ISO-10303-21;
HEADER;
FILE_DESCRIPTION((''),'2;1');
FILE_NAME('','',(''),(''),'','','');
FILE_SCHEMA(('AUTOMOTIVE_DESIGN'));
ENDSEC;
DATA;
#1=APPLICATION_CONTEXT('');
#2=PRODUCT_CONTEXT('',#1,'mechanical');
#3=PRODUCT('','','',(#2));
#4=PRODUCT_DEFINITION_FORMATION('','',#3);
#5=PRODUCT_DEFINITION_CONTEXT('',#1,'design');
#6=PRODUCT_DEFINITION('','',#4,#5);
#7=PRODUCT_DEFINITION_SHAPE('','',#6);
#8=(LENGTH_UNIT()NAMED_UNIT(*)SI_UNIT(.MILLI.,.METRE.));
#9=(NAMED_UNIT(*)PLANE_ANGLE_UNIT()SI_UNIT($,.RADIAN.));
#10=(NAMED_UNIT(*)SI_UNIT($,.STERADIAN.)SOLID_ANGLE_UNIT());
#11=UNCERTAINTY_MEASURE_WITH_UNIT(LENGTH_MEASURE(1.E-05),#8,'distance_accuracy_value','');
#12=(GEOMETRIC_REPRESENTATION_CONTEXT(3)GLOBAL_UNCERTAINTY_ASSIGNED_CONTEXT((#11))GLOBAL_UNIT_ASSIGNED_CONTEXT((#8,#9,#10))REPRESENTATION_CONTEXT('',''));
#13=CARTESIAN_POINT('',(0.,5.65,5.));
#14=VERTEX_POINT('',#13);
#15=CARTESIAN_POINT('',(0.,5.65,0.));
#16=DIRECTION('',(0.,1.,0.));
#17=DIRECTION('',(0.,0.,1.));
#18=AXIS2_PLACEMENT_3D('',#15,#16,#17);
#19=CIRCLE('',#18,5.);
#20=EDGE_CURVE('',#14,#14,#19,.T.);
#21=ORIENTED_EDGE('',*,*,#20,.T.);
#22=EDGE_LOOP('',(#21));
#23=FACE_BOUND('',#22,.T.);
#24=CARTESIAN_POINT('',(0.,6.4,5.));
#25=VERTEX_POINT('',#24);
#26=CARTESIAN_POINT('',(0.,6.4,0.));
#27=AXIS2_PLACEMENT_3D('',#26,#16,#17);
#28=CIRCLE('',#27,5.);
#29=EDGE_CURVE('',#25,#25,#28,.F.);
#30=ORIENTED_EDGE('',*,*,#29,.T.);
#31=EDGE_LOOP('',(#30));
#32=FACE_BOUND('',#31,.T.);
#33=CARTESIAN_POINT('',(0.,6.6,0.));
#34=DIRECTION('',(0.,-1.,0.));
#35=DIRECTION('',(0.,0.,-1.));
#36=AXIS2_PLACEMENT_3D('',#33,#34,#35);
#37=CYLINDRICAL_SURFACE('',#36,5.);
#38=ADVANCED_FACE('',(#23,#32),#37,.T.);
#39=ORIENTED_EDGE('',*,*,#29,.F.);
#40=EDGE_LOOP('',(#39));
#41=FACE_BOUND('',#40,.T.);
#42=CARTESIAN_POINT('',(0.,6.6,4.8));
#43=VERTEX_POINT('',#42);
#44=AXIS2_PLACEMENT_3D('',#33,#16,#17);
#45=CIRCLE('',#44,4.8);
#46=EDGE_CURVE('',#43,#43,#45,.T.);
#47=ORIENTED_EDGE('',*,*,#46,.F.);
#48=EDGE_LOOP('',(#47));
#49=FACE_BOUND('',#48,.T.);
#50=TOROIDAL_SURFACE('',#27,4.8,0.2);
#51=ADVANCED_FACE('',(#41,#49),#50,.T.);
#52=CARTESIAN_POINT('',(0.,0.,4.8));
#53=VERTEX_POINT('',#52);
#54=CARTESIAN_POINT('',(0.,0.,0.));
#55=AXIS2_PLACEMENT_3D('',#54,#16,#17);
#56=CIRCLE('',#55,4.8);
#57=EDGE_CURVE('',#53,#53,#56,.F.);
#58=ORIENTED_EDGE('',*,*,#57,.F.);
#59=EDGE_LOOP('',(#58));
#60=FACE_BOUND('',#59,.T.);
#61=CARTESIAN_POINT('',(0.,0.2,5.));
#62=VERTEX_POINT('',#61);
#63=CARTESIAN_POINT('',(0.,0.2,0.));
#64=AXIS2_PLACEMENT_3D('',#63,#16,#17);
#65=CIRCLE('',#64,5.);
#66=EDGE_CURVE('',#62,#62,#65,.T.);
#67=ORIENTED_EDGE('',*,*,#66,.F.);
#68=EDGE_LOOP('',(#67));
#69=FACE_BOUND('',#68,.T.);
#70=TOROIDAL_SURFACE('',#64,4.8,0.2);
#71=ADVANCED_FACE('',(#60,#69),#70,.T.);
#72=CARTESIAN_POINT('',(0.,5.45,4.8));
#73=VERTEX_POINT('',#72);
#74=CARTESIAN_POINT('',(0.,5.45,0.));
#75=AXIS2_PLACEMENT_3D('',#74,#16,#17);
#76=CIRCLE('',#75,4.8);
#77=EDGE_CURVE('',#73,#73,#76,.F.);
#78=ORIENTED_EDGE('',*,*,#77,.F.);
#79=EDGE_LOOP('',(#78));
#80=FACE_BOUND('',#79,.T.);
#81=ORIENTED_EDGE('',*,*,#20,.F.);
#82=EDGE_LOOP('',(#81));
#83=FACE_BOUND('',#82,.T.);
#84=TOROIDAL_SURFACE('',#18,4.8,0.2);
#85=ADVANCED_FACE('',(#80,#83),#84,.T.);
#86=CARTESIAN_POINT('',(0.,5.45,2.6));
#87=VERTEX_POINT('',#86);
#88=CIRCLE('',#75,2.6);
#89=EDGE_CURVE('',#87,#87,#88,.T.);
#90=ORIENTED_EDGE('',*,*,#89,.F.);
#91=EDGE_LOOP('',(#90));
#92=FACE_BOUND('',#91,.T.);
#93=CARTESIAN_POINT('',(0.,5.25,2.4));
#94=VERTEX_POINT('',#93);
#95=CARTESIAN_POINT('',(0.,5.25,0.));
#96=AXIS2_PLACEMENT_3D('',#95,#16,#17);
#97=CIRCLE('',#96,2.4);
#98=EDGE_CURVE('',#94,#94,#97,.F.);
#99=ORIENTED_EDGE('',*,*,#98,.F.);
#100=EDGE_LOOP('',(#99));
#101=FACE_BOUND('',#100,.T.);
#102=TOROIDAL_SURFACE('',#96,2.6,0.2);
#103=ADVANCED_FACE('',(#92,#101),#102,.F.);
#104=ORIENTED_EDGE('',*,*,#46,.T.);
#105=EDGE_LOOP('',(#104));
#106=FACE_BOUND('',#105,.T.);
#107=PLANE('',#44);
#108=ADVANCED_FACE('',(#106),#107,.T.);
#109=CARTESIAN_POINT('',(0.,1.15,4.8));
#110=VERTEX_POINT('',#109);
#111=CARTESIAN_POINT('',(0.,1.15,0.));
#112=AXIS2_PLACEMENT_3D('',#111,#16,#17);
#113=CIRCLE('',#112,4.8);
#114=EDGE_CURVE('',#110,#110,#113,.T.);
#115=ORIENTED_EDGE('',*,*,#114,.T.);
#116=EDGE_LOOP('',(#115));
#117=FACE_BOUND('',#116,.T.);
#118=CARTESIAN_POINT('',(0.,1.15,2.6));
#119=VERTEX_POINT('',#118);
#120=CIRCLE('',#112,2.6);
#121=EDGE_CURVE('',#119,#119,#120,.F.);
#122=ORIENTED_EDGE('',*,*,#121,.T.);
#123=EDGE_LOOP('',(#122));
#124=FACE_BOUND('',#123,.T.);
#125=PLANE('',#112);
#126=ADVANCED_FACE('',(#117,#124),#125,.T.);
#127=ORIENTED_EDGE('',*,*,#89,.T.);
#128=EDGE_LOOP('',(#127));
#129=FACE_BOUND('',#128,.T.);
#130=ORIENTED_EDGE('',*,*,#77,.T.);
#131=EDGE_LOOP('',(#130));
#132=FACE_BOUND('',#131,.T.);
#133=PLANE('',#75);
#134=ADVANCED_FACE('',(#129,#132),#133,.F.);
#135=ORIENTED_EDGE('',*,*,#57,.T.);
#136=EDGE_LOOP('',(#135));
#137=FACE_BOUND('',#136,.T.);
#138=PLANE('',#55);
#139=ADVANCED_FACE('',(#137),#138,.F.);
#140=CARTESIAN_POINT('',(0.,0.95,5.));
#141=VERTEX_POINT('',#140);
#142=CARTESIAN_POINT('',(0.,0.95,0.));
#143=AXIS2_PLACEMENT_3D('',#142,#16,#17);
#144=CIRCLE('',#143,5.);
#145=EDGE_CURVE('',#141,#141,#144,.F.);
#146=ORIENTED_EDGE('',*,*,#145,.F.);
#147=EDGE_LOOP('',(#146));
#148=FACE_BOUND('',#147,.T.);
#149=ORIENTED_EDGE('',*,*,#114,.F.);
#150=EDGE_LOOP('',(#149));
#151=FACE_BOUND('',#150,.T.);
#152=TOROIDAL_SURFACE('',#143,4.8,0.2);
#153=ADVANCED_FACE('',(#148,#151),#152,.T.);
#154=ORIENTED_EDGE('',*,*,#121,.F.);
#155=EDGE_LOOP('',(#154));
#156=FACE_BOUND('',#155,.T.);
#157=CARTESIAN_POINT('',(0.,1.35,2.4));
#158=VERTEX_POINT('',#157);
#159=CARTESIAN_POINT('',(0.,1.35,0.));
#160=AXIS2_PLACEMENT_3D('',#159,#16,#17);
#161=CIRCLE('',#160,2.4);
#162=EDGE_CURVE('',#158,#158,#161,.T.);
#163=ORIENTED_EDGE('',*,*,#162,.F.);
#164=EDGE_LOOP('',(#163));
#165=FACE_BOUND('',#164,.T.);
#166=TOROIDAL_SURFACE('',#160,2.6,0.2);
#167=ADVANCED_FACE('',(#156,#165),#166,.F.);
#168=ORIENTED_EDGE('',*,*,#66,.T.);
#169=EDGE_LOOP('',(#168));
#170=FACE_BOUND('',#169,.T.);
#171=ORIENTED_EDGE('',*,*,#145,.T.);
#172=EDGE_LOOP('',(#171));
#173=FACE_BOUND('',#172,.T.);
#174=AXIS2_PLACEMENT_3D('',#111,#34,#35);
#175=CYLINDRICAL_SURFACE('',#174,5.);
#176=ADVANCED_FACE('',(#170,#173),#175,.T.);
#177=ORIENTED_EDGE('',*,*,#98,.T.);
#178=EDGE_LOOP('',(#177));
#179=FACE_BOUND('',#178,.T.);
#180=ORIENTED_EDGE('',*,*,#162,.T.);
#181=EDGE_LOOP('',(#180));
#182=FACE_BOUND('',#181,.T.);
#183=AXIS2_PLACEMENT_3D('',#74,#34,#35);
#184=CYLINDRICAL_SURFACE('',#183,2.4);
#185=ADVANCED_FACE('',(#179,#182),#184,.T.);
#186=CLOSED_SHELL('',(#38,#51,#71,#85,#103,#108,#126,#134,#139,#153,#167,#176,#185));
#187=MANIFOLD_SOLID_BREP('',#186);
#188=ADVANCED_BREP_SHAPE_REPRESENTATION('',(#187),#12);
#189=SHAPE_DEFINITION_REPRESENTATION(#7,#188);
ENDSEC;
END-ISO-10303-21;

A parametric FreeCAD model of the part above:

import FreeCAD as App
import Part
import Sketcher
Q = App.Units.Quantity


def edges_at(feature, points):
    """Names of the edges that pass closest to the given points."""
    edges = feature.Shape.Edges
    near = lambda p: min(range(len(edges)), key=lambda i: edges[i].distToShape(Part.Vertex(*p))[0])
    return sorted({f"Edge{near(p) + 1}" for p in points})

doc = App.newDocument("Part")
body = doc.addObject("PartDesign::Body", "Body")

# Sketch on XZ plane
sketch1 = doc.addObject("Sketcher::SketchObject", "Sketch")
body.addObject(sketch1)
sketch1.AttachmentSupport = (doc.XZ_Plane, [""])
sketch1.MapMode = "FlatFace"
sketch1.addGeometry(Part.Circle(App.Vector(0, 0, 0), App.Vector(0, 0, 1), 5), False)
sketch1.addConstraint(Sketcher.Constraint("Coincident", 0, 3, -1, 1))
sketch1.addConstraint(Sketcher.Constraint("Diameter", 0, Q("10 mm")))
pad1 = doc.addObject("PartDesign::Pad", "Pad")
body.addObject(pad1)
pad1.Profile = sketch1
pad1.Length = 1.15
pad1.Reversed = True

# Sketch on XZ plane
sketch2 = doc.addObject("Sketcher::SketchObject", "Sketch001")
body.addObject(sketch2)
sketch2.AttachmentSupport = (doc.XZ_Plane, [""])
sketch2.MapMode = "FlatFace"
sketch2.AttachmentOffset = App.Placement(App.Vector(0, 0, -1.15), App.Rotation())
sketch2.addGeometry(Part.Circle(App.Vector(0, 0, 0), App.Vector(0, 0, 1), 2.4), False)
sketch2.addConstraint(Sketcher.Constraint("Coincident", 0, 3, -1, 1))
sketch2.addConstraint(Sketcher.Constraint("Diameter", 0, Q("4.8 mm")))
pad2 = doc.addObject("PartDesign::Pad", "Pad001")
body.addObject(pad2)
pad2.Profile = sketch2
pad2.Length = 4.3
pad2.Reversed = True

# Sketch on XZ plane
sketch3 = doc.addObject("Sketcher::SketchObject", "Sketch002")
body.addObject(sketch3)
sketch3.AttachmentSupport = (doc.XZ_Plane, [""])
sketch3.MapMode = "FlatFace"
sketch3.AttachmentOffset = App.Placement(App.Vector(0, 0, -5.45), App.Rotation())
sketch3.addGeometry(Part.Circle(App.Vector(0, 0, 0), App.Vector(0, 0, 1), 5), False)
sketch3.addConstraint(Sketcher.Constraint("Coincident", 0, 3, -1, 1))
sketch3.addConstraint(Sketcher.Constraint("Diameter", 0, Q("10 mm")))
pad3 = doc.addObject("PartDesign::Pad", "Pad002")
body.addObject(pad3)
pad3.Profile = sketch3
pad3.Length = 1.15
pad3.Reversed = True
doc.recompute()

fillet = doc.addObject("PartDesign::Fillet", "Fillet")
body.addObject(fillet)
fillet.Base = (pad3, edges_at(pad3, [
    (-5, 5.45, 0),
    (-5, 6.6, 0),
    (-5, 0, 0),
    (-5, 1.15, 0),
    (-2.4, 1.15, 0),
    (-2.4, 5.45, 0),
]))
fillet.Radius = 0.2

doc.recompute()
